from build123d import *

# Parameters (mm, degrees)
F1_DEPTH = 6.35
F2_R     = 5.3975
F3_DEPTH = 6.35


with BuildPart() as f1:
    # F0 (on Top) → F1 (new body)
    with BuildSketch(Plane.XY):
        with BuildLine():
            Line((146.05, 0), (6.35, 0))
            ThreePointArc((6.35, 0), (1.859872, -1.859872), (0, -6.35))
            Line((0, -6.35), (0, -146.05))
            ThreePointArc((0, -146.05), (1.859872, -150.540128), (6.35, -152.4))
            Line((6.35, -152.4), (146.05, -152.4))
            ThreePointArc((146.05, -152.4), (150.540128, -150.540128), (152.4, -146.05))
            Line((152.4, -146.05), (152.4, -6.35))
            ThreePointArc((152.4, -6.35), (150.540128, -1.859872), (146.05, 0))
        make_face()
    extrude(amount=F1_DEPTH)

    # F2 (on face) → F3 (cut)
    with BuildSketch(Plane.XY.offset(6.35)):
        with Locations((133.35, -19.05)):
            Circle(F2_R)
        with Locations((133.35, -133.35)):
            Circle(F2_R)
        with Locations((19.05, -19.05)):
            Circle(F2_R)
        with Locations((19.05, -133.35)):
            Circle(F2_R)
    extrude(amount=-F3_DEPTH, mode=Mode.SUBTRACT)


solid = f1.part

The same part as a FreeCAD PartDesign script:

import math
import FreeCAD as App
import Part
import Sketcher
from FreeCAD import Vector
Q = App.Units.Quantity

doc = App.newDocument("Part")
body = doc.addObject("PartDesign::Body", "Body")

sketch1 = body.newObject("Sketcher::SketchObject", "Sketch")
sketch1.AttachmentSupport = (doc.getObject("XY_Plane"), [""])
sketch1.MapMode = "FlatFace"
sketch1.addGeometry([
    Part.LineSegment(Vector(146, 0, 0), Vector(6, 0, 0)),
    Part.ArcOfCircle(Part.Circle(Vector(6, -6, 0), Vector(0, 0, 1), 6), math.radians(90), math.radians(180)),
    Part.LineSegment(Vector(0, -6, 0), Vector(0, -146, 0)),
    Part.ArcOfCircle(Part.Circle(Vector(6, -146, 0), Vector(0, 0, 1), 6), math.radians(-180), math.radians(-90)),
    Part.LineSegment(Vector(6, -152, 0), Vector(146, -152, 0)),
    Part.ArcOfCircle(Part.Circle(Vector(146, -146, 0), Vector(0, 0, 1), 6), math.radians(-90), math.radians(0)),
    Part.LineSegment(Vector(152, -146, 0), Vector(152, -6, 0)),
    Part.ArcOfCircle(Part.Circle(Vector(146, -6, 0), Vector(0, 0, 1), 6), math.radians(0), math.radians(90)),
], False)
sketch1.addConstraint([
    Sketcher.Constraint("Tangent", 0, 2, 1, 1),
    Sketcher.Constraint("Tangent", 1, 2, 2, 1),
    Sketcher.Constraint("Tangent", 2, 2, 3, 1),
    Sketcher.Constraint("Tangent", 3, 2, 4, 1),
    Sketcher.Constraint("Tangent", 4, 2, 5, 1),
    Sketcher.Constraint("Tangent", 5, 2, 6, 1),
    Sketcher.Constraint("Tangent", 6, 2, 7, 1),
    Sketcher.Constraint("Tangent", 7, 2, 0, 1),
    Sketcher.Constraint("Horizontal", 0),
    Sketcher.Constraint("Vertical", 2),
    Sketcher.Constraint("Horizontal", 4),
    Sketcher.Constraint("Vertical", 6),
    Sketcher.Constraint("Equal", 1, 3),
    Sketcher.Constraint("Equal", 3, 5),
    Sketcher.Constraint("Equal", 5, 7),
    Sketcher.Constraint("PointOnObject", 0, 2, -1),
    Sketcher.Constraint("PointOnObject", 1, 2, -2),
    Sketcher.Constraint("Equal", 4, 2),
    Sketcher.Constraint("Radius", 1, Q("0.25 in")),
    Sketcher.Constraint("DistanceX", 0, 2, 0, 1, Q("5.5 in")),
])
pad1 = body.newObject("PartDesign::Pad", "Pad")
pad1.Profile = sketch1
pad1.Length = Q("0.25 in")

sketch2 = body.newObject("Sketcher::SketchObject", "Sketch001")
sketch2.AttachmentSupport = (doc.getObject("XY_Plane"), [""])
sketch2.MapMode = "FlatFace"
sketch2.AttachmentOffset = App.Placement(Vector(0, 0, 0.25 * 25.4), App.Rotation())
sketch2.addGeometry([
    Part.Circle(Vector(133, -19, 0), Vector(0, 0, 1), 5),
    Part.Circle(Vector(133, -133, 0), Vector(0, 0, 1), 5),
    Part.Circle(Vector(19, -19, 0), Vector(0, 0, 1), 5),
    Part.Circle(Vector(19, -133, 0), Vector(0, 0, 1), 5),
], False)
sketch2.addConstraint([
    Sketcher.Constraint("Equal", 0, 1),
    Sketcher.Constraint("Equal", 1, 2),
    Sketcher.Constraint("Equal", 2, 3),
    Sketcher.Constraint("Horizontal", 0, 3, 2, 3),
    Sketcher.Constraint("Horizontal", 1, 3, 3, 3),
    Sketcher.Constraint("Vertical", 0, 3, 1, 3),
    Sketcher.Constraint("Vertical", 2, 3, 3, 3),
    Sketcher.Constraint("Diameter", 0, Q("0.425 in")),
    Sketcher.Constraint("DistanceY", 1, 3, 0, 3, Q("4.5 in")),
    Sketcher.Constraint("DistanceX", 2, 3, 0, 3, Q("4.5 in")),
    Sketcher.Constraint("DistanceX", -1, 1, 0, 3, Q("5.25 in")),
    Sketcher.Constraint("DistanceY", 0, 3, -1, 1, Q("0.75 in")),
])
pocket1 = body.newObject("PartDesign::Pocket", "Pocket")
pocket1.Profile = sketch2
pocket1.Length = Q("0.25 in")

doc.recompute()
